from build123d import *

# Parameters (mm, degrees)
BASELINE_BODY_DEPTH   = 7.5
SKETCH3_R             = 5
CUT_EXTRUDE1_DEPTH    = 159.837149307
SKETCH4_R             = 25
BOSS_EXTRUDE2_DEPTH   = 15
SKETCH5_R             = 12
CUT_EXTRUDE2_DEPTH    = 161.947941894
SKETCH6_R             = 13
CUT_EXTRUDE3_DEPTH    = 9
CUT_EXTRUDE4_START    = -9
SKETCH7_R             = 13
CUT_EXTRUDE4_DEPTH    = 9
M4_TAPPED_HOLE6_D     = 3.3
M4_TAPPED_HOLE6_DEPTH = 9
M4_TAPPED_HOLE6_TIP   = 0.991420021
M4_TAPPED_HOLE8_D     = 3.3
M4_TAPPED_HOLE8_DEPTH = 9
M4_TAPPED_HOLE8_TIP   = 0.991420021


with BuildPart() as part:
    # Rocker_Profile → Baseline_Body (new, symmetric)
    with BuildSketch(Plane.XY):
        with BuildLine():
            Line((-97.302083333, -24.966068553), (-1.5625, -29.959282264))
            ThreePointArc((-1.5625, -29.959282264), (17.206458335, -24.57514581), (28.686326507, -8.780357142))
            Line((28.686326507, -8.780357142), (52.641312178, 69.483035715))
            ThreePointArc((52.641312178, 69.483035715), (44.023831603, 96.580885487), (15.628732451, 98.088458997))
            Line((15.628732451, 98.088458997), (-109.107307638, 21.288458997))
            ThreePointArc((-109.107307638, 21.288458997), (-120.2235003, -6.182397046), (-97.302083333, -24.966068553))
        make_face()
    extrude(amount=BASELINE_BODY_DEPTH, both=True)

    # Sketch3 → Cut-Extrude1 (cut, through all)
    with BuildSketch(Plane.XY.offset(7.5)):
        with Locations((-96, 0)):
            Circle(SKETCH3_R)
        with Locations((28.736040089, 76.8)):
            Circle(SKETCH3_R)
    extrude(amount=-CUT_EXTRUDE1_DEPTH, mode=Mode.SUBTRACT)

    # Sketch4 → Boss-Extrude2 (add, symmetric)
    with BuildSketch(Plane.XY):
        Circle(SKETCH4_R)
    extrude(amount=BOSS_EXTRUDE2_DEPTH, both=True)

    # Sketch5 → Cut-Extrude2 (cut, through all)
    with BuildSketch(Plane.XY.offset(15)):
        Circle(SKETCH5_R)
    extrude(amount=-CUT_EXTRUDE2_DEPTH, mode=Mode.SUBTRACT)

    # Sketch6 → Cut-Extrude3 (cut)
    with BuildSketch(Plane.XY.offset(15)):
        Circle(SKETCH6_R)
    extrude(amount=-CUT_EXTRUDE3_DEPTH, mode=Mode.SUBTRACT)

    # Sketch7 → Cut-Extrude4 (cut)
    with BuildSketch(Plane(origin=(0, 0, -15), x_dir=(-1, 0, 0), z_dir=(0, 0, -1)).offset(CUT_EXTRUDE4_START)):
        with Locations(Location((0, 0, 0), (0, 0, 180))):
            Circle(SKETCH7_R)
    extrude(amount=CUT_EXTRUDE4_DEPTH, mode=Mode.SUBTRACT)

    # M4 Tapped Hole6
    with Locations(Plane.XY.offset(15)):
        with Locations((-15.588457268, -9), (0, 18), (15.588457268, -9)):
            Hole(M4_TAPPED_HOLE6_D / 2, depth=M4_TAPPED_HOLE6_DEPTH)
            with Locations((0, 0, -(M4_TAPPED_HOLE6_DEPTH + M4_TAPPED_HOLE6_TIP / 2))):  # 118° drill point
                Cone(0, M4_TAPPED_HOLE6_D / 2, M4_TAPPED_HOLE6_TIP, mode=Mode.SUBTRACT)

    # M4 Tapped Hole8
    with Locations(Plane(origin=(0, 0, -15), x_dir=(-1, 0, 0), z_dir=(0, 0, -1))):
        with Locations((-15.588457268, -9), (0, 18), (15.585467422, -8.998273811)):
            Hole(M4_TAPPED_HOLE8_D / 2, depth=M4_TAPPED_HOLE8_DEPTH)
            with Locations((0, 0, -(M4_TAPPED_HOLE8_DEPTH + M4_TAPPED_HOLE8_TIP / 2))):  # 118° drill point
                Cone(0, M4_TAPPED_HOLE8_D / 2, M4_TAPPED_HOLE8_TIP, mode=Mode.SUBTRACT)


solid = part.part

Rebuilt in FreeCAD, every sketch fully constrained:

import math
import FreeCAD as App
import Part
import Sketcher
Q = App.Units.Quantity

doc = App.newDocument("Part")
body = doc.addObject("PartDesign::Body", "Body")

sketch1 = body.newObject("Sketcher::SketchObject", "Sketch")
sketch1.AttachmentSupport = (doc.getObject("XY_Plane"), [""])
sketch1.MapMode = "FlatFace"
sketch1.addGeometry(Part.LineSegment(App.Vector(-97, -25, 0), App.Vector(-2, -30, 0)), False)
sketch1.addGeometry(Part.ArcOfCircle(Part.Circle(App.Vector(0, 0, 0), App.Vector(0, 0, 1), 30), math.radians(-93), math.radians(-17)), False)
sketch1.addGeometry(Part.LineSegment(App.Vector(29, -9, 0), App.Vector(53, 69, 0)), False)
sketch1.addGeometry(Part.ArcOfCircle(Part.Circle(App.Vector(29, 77, 0), App.Vector(0, 0, 1), 25), math.radians(-17), math.radians(122)), False)
sketch1.addGeometry(Part.LineSegment(App.Vector(16, 98, 0), App.Vector(-109, 21, 0)), False)
sketch1.addGeometry(Part.ArcOfCircle(Part.Circle(App.Vector(-96, 0, 0), App.Vector(0, 0, 1), 25), math.radians(122), math.radians(267)), False)
sketch1.addConstraint(Sketcher.Constraint("Tangent", 0, 2, 1, 1))
sketch1.addConstraint(Sketcher.Constraint("Tangent", 1, 2, 2, 1))
sketch1.addConstraint(Sketcher.Constraint("Tangent", 2, 2, 3, 1))
sketch1.addConstraint(Sketcher.Constraint("Tangent", 3, 2, 4, 1))
sketch1.addConstraint(Sketcher.Constraint("Tangent", 4, 2, 5, 1))
sketch1.addConstraint(Sketcher.Constraint("Tangent", 5, 2, 0, 1))
sketch1.addConstraint(Sketcher.Constraint("Coincident", 1, 3, -1, 1))
sketch1.addConstraint(Sketcher.Constraint("Equal", 3, 5))
sketch1.addConstraint(Sketcher.Constraint("PointOnObject", 5, 3, -1))
sketch1.addConstraint(Sketcher.Constraint("Radius", 1, Q("30 mm")))
sketch1.addConstraint(Sketcher.Constraint("Radius", 3, Q("25 mm")))
sketch1.addConstraint(Sketcher.Constraint("DistanceX", 5, 3, -1, 1, Q("96 mm")))
sketch1.addConstraint(Sketcher.Constraint("DistanceY", -1, 1, 3, 3, Q("76.8 mm")))
sketch1.addConstraint(Sketcher.Constraint("Distance", 2, Q("81.847419 mm")))
pad1 = body.newObject("PartDesign::Pad", "Pad")
pad1.Profile = sketch1
pad1.Length = 15
pad1.Midplane = True

sketch2 = body.newObject("Sketcher::SketchObject", "Sketch001")
sketch2.AttachmentSupport = (doc.getObject("XY_Plane"), [""])
sketch2.MapMode = "FlatFace"
sketch2.AttachmentOffset = App.Placement(App.Vector(0, 0, 7.5), App.Rotation())
sketch2.addGeometry(Part.Circle(App.Vector(-96, 0, 0), App.Vector(0, 0, 1), 5), False)
sketch2.addGeometry(Part.Circle(App.Vector(29, 77, 0), App.Vector(0, 0, 1), 5), False)
sketch2.addConstraint(Sketcher.Constraint("Equal", 0, 1))
sketch2.addConstraint(Sketcher.Constraint("PointOnObject", 0, 3, -1))
sketch2.addConstraint(Sketcher.Constraint("Diameter", 0, Q("10 mm")))
sketch2.addConstraint(Sketcher.Constraint("DistanceX", 0, 3, -1, 1, Q("96 mm")))
sketch2.addConstraint(Sketcher.Constraint("DistanceY", -1, 1, 1, 3, Q("76.8 mm")))
sketch2.addConstraint(Sketcher.Constraint("DistanceX", -1, 1, 1, 3, Q("28.73604 mm")))
pocket1 = body.newObject("PartDesign::Pocket", "Pocket")
pocket1.Profile = sketch2
pocket1.Type = "ThroughAll"

sketch3 = body.newObject("Sketcher::SketchObject", "Sketch002")
sketch3.AttachmentSupport = (doc.getObject("XY_Plane"), [""])
sketch3.MapMode = "FlatFace"
sketch3.addGeometry(Part.Circle(App.Vector(0, 0, 0), App.Vector(0, 0, 1), 25), False)
sketch3.addConstraint(Sketcher.Constraint("Coincident", 0, 3, -1, 1))
sketch3.addConstraint(Sketcher.Constraint("Diameter", 0, Q("50 mm")))
pad2 = body.newObject("PartDesign::Pad", "Pad001")
pad2.Profile = sketch3
pad2.Length = 30
pad2.Midplane = True

sketch4 = body.newObject("Sketcher::SketchObject", "Sketch003")
sketch4.AttachmentSupport = (doc.getObject("XY_Plane"), [""])
sketch4.MapMode = "FlatFace"
sketch4.AttachmentOffset = App.Placement(App.Vector(0, 0, 15), App.Rotation())
sketch4.addGeometry(Part.Circle(App.Vector(0, 0, 0), App.Vector(0, 0, 1), 12), False)
sketch4.addConstraint(Sketcher.Constraint("Coincident", 0, 3, -1, 1))
sketch4.addConstraint(Sketcher.Constraint("Diameter", 0, Q("24 mm")))
pocket2 = body.newObject("PartDesign::Pocket", "Pocket001")
pocket2.Profile = sketch4
pocket2.Type = "ThroughAll"

sketch5 = body.newObject("Sketcher::SketchObject", "Sketch004")
sketch5.AttachmentSupport = (doc.getObject("XY_Plane"), [""])
sketch5.MapMode = "FlatFace"
sketch5.AttachmentOffset = App.Placement(App.Vector(0, 0, 15), App.Rotation())
sketch5.addGeometry(Part.Circle(App.Vector(0, 0, 0), App.Vector(0, 0, 1), 13), False)
sketch5.addConstraint(Sketcher.Constraint("Coincident", 0, 3, -1, 1))
sketch5.addConstraint(Sketcher.Constraint("Diameter", 0, Q("26 mm")))
pocket3 = body.newObject("PartDesign::Pocket", "Pocket002")
pocket3.Profile = sketch5
pocket3.Length = 9

sketch6 = body.newObject("Sketcher::SketchObject", "Sketch005")
sketch6.AttachmentSupport = (doc.getObject("XY_Plane"), [""])
sketch6.MapMode = "FlatFace"
sketch6.AttachmentOffset = App.Placement(App.Vector(0, 0, -6), App.Rotation())
sketch6.addGeometry(Part.Circle(App.Vector(0, 0, 0), App.Vector(0, 0, 1), 13), False)
sketch6.addConstraint(Sketcher.Constraint("Coincident", 0, 3, -1, 1))
sketch6.addConstraint(Sketcher.Constraint("Diameter", 0, Q("26 mm")))
pocket4 = body.newObject("PartDesign::Pocket", "Pocket003")
pocket4.Profile = sketch6
pocket4.Length = 9

sketch7 = body.newObject("Sketcher::SketchObject", "Sketch006")
sketch7.AttachmentSupport = (doc.getObject("XY_Plane"), [""])
sketch7.MapMode = "FlatFace"
sketch7.AttachmentOffset = App.Placement(App.Vector(0, 0, 15), App.Rotation())
sketch7.addGeometry(Part.Circle(App.Vector(-15.6, -9, 0), App.Vector(0, 0, 1), 1.6), False)
sketch7.addGeometry(Part.Circle(App.Vector(0, 18, 0), App.Vector(0, 0, 1), 1.6), False)
sketch7.addGeometry(Part.Circle(App.Vector(15.6, -9, 0), App.Vector(0, 0, 1), 1.6), False)
sketch7.addConstraint(Sketcher.Constraint("Equal", 0, 1))
sketch7.addConstraint(Sketcher.Constraint("Equal", 1, 2))
sketch7.addConstraint(Sketcher.Constraint("Symmetric", 0, 3, 2, 3, -2))
sketch7.addConstraint(Sketcher.Constraint("PointOnObject", 1, 3, -2))
sketch7.addConstraint(Sketcher.Constraint("Diameter", 0, Q("3.3 mm")))
sketch7.addConstraint(Sketcher.Constraint("DistanceY", 0, 3, -1, 1, Q("9 mm")))
sketch7.addConstraint(Sketcher.Constraint("DistanceY", -1, 1, 1, 3, Q("18 mm")))
sketch7.addConstraint(Sketcher.Constraint("DistanceX", 0, 3, -1, 1, Q("15.588457 mm")))
doc.recompute()
hole = body.newObject("PartDesign::Hole", "Hole")
hole.Profile = sketch7
hole.ThreadType = "None"
hole.Diameter = 3.3
hole.DepthType = "Dimension"
hole.Depth = 9
hole.DrillPoint = "Angled"
hole.DrillPointAngle = 118

sketch8 = body.newObject("Sketcher::SketchObject", "Sketch007")
sketch8.AttachmentSupport = (doc.getObject("XY_Plane"), [""])
sketch8.MapMode = "FlatFace"
sketch8.AttachmentOffset = App.Placement(App.Vector(0, 0, -15), App.Rotation())
sketch8.addGeometry(Part.Circle(App.Vector(15.6, -9, 0), App.Vector(0, 0, 1), 1.6), False)
sketch8.addGeometry(Part.Circle(App.Vector(0, 18, 0), App.Vector(0, 0, 1), 1.6), False)
sketch8.addGeometry(Part.Circle(App.Vector(-15.6, -9, 0), App.Vector(0, 0, 1), 1.6), False)
sketch8.addConstraint(Sketcher.Constraint("Equal", 0, 1))
sketch8.addConstraint(Sketcher.Constraint("Equal", 1, 2))
sketch8.addConstraint(Sketcher.Constraint("PointOnObject", 1, 3, -2))
sketch8.addConstraint(Sketcher.Constraint("Diameter", 0, Q("3.3 mm")))
sketch8.addConstraint(Sketcher.Constraint("DistanceY", 0, 3, -1, 1, Q("9 mm")))
sketch8.addConstraint(Sketcher.Constraint("DistanceY", -1, 1, 1, 3, Q("18 mm")))
sketch8.addConstraint(Sketcher.Constraint("DistanceX", -1, 1, 0, 3, Q("15.588457 mm")))
sketch8.addConstraint(Sketcher.Constraint("DistanceX", 2, 3, -1, 1, Q("15.585467 mm")))
sketch8.addConstraint(Sketcher.Constraint("DistanceY", 2, 3, -1, 1, Q("8.998274 mm")))
doc.recompute()
hole2 = body.newObject("PartDesign::Hole", "Hole001")
hole2.Profile = sketch8
hole2.ThreadType = "None"
hole2.Diameter = 3.3
hole2.DepthType = "Dimension"
hole2.Depth = 9
hole2.DrillPoint = "Angled"
hole2.DrillPointAngle = 118
hole2.Reversed = True

doc.recompute()
